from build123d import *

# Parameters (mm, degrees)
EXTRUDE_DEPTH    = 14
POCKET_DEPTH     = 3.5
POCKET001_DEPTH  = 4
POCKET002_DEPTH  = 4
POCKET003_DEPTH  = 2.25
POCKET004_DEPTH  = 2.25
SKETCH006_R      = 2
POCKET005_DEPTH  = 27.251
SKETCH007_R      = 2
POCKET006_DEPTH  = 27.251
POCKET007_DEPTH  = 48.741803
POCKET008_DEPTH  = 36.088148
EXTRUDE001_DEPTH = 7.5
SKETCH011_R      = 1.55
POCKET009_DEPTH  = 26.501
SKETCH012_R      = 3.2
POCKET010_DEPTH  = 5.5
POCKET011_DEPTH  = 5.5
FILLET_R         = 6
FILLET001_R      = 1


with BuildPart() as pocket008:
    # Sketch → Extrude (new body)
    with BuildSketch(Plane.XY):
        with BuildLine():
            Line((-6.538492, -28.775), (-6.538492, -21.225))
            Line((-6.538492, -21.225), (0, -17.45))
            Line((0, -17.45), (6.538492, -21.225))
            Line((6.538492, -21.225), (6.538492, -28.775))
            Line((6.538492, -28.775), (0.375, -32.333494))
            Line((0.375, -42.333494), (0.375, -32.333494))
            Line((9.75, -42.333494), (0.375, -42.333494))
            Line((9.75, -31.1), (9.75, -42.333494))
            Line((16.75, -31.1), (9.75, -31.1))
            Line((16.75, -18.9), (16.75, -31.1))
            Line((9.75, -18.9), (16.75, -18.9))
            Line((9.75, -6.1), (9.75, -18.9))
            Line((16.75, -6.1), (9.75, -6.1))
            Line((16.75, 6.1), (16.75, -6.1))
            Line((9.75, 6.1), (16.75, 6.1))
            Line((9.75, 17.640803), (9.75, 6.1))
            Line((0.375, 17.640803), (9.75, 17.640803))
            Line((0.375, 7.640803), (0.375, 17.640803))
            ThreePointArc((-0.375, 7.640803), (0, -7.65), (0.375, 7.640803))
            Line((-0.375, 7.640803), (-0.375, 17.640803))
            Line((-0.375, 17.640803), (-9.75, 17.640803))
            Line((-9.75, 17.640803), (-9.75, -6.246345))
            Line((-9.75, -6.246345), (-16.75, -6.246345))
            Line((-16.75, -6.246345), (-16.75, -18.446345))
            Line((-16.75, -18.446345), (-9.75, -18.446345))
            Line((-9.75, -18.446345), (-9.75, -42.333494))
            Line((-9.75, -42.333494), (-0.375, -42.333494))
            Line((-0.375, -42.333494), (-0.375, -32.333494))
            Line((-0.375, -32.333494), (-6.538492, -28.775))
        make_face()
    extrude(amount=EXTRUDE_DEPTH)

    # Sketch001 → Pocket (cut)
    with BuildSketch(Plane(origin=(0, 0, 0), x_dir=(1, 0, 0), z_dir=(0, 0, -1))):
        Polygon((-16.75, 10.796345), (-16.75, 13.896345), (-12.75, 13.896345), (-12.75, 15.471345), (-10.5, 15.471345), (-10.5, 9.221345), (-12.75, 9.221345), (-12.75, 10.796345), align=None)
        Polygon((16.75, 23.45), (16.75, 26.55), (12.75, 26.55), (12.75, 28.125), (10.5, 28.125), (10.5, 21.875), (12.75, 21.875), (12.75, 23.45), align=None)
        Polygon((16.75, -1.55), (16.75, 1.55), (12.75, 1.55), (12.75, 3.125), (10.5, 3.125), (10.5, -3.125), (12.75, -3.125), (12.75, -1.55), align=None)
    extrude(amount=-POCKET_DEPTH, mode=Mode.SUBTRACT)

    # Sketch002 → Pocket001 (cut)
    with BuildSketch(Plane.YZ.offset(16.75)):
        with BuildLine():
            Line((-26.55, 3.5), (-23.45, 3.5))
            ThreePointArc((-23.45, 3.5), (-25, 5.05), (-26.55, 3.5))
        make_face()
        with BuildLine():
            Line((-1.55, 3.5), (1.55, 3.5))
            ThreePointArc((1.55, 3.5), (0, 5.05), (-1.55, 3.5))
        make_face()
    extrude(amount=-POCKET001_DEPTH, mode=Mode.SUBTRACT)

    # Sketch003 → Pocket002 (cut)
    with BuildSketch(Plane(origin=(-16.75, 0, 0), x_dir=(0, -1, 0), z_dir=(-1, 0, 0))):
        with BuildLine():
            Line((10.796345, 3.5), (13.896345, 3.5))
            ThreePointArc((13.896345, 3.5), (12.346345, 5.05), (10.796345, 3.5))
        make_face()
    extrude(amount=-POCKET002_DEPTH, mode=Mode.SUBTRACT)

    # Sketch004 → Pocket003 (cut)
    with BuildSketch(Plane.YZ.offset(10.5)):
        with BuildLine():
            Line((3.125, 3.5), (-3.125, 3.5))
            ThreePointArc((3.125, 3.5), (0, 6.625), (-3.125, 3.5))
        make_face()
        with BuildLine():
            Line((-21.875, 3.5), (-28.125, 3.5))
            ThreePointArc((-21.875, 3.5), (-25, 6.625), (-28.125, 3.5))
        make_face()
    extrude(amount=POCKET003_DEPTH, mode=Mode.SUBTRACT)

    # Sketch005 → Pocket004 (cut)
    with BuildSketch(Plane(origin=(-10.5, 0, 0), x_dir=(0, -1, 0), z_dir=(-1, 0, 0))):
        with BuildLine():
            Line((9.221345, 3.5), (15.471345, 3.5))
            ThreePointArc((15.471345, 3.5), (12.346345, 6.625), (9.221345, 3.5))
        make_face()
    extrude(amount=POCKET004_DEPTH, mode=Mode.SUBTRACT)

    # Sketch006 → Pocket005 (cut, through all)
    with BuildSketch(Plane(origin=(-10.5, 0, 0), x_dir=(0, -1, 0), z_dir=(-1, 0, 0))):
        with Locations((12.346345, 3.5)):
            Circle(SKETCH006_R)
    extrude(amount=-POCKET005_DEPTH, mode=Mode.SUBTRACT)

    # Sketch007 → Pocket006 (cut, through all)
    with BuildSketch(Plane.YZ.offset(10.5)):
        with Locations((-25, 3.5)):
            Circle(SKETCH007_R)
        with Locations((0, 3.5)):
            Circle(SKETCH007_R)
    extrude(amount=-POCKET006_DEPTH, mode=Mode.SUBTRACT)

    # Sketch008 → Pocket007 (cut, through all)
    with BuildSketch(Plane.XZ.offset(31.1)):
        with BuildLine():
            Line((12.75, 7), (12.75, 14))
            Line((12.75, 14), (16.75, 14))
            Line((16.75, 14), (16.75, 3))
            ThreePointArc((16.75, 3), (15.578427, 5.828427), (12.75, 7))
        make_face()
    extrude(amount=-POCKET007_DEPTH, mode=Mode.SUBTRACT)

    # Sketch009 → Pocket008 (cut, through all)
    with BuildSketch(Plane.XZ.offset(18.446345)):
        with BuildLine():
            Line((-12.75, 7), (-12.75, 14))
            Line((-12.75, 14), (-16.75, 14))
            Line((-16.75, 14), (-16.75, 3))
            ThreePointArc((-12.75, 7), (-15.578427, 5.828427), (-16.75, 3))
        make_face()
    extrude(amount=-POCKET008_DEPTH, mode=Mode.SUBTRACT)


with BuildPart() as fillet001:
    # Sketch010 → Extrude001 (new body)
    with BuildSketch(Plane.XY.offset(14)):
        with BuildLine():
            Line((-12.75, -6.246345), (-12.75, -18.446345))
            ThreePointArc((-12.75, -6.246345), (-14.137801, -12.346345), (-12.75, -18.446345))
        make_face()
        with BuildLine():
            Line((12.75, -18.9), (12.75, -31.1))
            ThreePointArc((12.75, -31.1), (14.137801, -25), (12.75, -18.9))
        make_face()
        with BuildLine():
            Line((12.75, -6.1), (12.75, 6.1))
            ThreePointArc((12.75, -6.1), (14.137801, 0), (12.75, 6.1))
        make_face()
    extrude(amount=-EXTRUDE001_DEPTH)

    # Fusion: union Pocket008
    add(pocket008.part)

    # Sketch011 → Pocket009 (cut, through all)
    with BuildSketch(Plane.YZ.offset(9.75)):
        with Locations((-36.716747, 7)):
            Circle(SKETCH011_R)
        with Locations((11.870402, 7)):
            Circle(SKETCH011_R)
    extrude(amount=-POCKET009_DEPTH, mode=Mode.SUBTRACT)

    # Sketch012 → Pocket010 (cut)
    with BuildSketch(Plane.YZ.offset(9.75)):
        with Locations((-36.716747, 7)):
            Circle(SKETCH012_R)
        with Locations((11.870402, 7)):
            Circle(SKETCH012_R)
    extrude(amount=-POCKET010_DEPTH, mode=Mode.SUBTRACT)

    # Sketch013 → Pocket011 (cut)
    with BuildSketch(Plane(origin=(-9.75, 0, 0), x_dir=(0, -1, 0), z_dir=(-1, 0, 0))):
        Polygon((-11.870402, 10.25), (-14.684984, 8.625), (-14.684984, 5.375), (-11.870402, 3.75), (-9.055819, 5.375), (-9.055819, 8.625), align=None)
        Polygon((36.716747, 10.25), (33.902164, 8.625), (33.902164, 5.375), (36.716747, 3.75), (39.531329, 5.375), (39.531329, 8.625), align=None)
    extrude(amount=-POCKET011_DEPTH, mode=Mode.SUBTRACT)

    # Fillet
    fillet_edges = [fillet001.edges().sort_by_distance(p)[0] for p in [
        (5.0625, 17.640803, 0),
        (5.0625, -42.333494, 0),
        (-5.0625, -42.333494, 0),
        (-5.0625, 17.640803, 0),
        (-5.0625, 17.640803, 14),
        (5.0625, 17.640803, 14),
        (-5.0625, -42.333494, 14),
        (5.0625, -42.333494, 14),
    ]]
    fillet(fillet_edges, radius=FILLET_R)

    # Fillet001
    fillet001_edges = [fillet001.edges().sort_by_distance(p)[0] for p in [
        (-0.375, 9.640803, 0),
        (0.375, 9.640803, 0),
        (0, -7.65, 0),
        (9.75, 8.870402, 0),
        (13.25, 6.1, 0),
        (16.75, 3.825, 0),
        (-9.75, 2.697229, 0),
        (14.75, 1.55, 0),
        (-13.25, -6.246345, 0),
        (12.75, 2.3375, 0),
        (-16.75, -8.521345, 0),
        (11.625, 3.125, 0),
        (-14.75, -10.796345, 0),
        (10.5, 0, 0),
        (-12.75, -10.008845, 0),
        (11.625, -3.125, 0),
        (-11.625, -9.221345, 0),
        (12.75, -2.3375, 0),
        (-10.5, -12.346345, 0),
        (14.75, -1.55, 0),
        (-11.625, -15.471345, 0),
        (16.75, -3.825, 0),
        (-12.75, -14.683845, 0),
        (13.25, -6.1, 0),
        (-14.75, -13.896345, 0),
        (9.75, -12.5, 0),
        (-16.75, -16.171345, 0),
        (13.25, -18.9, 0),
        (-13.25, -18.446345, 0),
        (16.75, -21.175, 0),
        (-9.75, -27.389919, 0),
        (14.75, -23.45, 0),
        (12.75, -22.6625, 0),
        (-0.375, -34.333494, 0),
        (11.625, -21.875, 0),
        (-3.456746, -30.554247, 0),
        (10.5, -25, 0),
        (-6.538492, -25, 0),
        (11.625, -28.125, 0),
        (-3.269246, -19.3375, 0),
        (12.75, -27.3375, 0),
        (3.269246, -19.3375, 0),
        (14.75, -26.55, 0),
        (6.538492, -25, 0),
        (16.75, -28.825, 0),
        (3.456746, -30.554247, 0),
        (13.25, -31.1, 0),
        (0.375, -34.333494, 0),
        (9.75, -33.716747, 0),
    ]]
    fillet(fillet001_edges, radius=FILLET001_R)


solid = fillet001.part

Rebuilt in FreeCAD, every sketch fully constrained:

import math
import FreeCAD as App
import Part
import Sketcher
Q = App.Units.Quantity


def edges_at(feature, points):
    """Names of the edges that pass closest to the given points."""
    edges = feature.Shape.Edges
    near = lambda p: min(range(len(edges)), key=lambda i: edges[i].distToShape(Part.Vertex(*p))[0])
    return sorted({f"Edge{near(p) + 1}" for p in points})


def add_polygon(sketch, points):
    """Adds a closed chain of lines whose ends are joined by coincident constraints."""
    first, n = sketch.GeometryCount, len(points)
    for a, b in zip(points, points[1:] + points[:1]):
        sketch.addGeometry(Part.LineSegment(App.Vector(*a, 0), App.Vector(*b, 0)), False)
    for i in range(n):
        sketch.addConstraint(Sketcher.Constraint("Coincident", first + i, 2, first + (i + 1) % n, 1))

doc = App.newDocument("Part")
body = doc.addObject("PartDesign::Body", "Body")

sketch1 = body.newObject("Sketcher::SketchObject", "Sketch")
sketch1.AttachmentSupport = (doc.getObject("XY_Plane"), [""])
sketch1.MapMode = "FlatFace"
sketch1.addGeometry(Part.LineSegment(App.Vector(-6.538492, -28.775, 0), App.Vector(-6.538492, -21.225, 0)), False)
sketch1.addGeometry(Part.LineSegment(App.Vector(-6.538492, -21.225, 0), App.Vector(0, -17.45, 0)), False)
sketch1.addGeometry(Part.LineSegment(App.Vector(0, -17.45, 0), App.Vector(6.538492, -21.225, 0)), False)
sketch1.addGeometry(Part.LineSegment(App.Vector(6.538492, -21.225, 0), App.Vector(6.538492, -28.775, 0)), False)
sketch1.addGeometry(Part.LineSegment(App.Vector(6.538492, -28.775, 0), App.Vector(0.375, -32.333494, 0)), False)
sketch1.addGeometry(Part.LineSegment(App.Vector(0.375, -32.333494, 0), App.Vector(0.375, -42.333494, 0)), False)
sketch1.addGeometry(Part.LineSegment(App.Vector(0.375, -42.333494, 0), App.Vector(9.75, -42.333494, 0)), False)
sketch1.addGeometry(Part.LineSegment(App.Vector(9.75, -42.333494, 0), App.Vector(9.75, -31.1, 0)), False)
sketch1.addGeometry(Part.LineSegment(App.Vector(9.75, -31.1, 0), App.Vector(16.75, -31.1, 0)), False)
sketch1.addGeometry(Part.LineSegment(App.Vector(16.75, -31.1, 0), App.Vector(16.75, -18.9, 0)), False)
sketch1.addGeometry(Part.LineSegment(App.Vector(16.75, -18.9, 0), App.Vector(9.75, -18.9, 0)), False)
sketch1.addGeometry(Part.LineSegment(App.Vector(9.75, -18.9, 0), App.Vector(9.75, -6.1, 0)), False)
sketch1.addGeometry(Part.LineSegment(App.Vector(9.75, -6.1, 0), App.Vector(16.75, -6.1, 0)), False)
sketch1.addGeometry(Part.LineSegment(App.Vector(16.75, -6.1, 0), App.Vector(16.75, 6.1, 0)), False)
sketch1.addGeometry(Part.LineSegment(App.Vector(16.75, 6.1, 0), App.Vector(9.75, 6.1, 0)), False)
sketch1.addGeometry(Part.LineSegment(App.Vector(9.75, 6.1, 0), App.Vector(9.75, 17.640803, 0)), False)
sketch1.addGeometry(Part.LineSegment(App.Vector(9.75, 17.640803, 0), App.Vector(0.375, 17.640803, 0)), False)
sketch1.addGeometry(Part.LineSegment(App.Vector(0.375, 17.640803, 0), App.Vector(0.375, 7.640803, 0)), False)
sketch1.addGeometry(Part.ArcOfCircle(Part.Circle(App.Vector(0, 0, 0), App.Vector(0, 0, 1), 7.65), math.radians(92.809743), math.radians(447.190257)), False)
sketch1.addGeometry(Part.LineSegment(App.Vector(-0.375, 7.640803, 0), App.Vector(-0.375, 17.640803, 0)), False)
sketch1.addGeometry(Part.LineSegment(App.Vector(-0.375, 17.640803, 0), App.Vector(-9.75, 17.640803, 0)), False)
sketch1.addGeometry(Part.LineSegment(App.Vector(-9.75, 17.640803, 0), App.Vector(-9.75, -6.246345, 0)), False)
sketch1.addGeometry(Part.LineSegment(App.Vector(-9.75, -6.246345, 0), App.Vector(-16.75, -6.246345, 0)), False)
sketch1.addGeometry(Part.LineSegment(App.Vector(-16.75, -6.246345, 0), App.Vector(-16.75, -18.446345, 0)), False)
sketch1.addGeometry(Part.LineSegment(App.Vector(-16.75, -18.446345, 0), App.Vector(-9.75, -18.446345, 0)), False)
sketch1.addGeometry(Part.LineSegment(App.Vector(-9.75, -18.446345, 0), App.Vector(-9.75, -42.333494, 0)), False)
sketch1.addGeometry(Part.LineSegment(App.Vector(-9.75, -42.333494, 0), App.Vector(-0.375, -42.333494, 0)), False)
sketch1.addGeometry(Part.LineSegment(App.Vector(-0.375, -42.333494, 0), App.Vector(-0.375, -32.333494, 0)), False)
sketch1.addGeometry(Part.LineSegment(App.Vector(-0.375, -32.333494, 0), App.Vector(-6.538492, -28.775, 0)), False)
sketch1.addConstraint(Sketcher.Constraint("Coincident", 0, 2, 1, 1))
sketch1.addConstraint(Sketcher.Constraint("Coincident", 1, 2, 2, 1))
sketch1.addConstraint(Sketcher.Constraint("Coincident", 2, 2, 3, 1))
sketch1.addConstraint(Sketcher.Constraint("Coincident", 3, 2, 4, 1))
sketch1.addConstraint(Sketcher.Constraint("Coincident", 4, 2, 5, 1))
sketch1.addConstraint(Sketcher.Constraint("Coincident", 5, 2, 6, 1))
sketch1.addConstraint(Sketcher.Constraint("Coincident", 6, 2, 7, 1))
sketch1.addConstraint(Sketcher.Constraint("Coincident", 7, 2, 8, 1))
sketch1.addConstraint(Sketcher.Constraint("Coincident", 8, 2, 9, 1))
sketch1.addConstraint(Sketcher.Constraint("Coincident", 9, 2, 10, 1))
sketch1.addConstraint(Sketcher.Constraint("Coincident", 10, 2, 11, 1))
sketch1.addConstraint(Sketcher.Constraint("Coincident", 11, 2, 12, 1))
sketch1.addConstraint(Sketcher.Constraint("Coincident", 12, 2, 13, 1))
sketch1.addConstraint(Sketcher.Constraint("Coincident", 13, 2, 14, 1))
sketch1.addConstraint(Sketcher.Constraint("Coincident", 14, 2, 15, 1))
sketch1.addConstraint(Sketcher.Constraint("Coincident", 15, 2, 16, 1))
sketch1.addConstraint(Sketcher.Constraint("Coincident", 16, 2, 17, 1))
sketch1.addConstraint(Sketcher.Constraint("Coincident", 17, 2, 18, 2))
sketch1.addConstraint(Sketcher.Constraint("Coincident", 18, 1, 19, 1))
sketch1.addConstraint(Sketcher.Constraint("Coincident", 19, 2, 20, 1))
sketch1.addConstraint(Sketcher.Constraint("Coincident", 20, 2, 21, 1))
sketch1.addConstraint(Sketcher.Constraint("Coincident", 21, 2, 22, 1))
sketch1.addConstraint(Sketcher.Constraint("Coincident", 22, 2, 23, 1))
sketch1.addConstraint(Sketcher.Constraint("Coincident", 23, 2, 24, 1))
sketch1.addConstraint(Sketcher.Constraint("Coincident", 24, 2, 25, 1))
sketch1.addConstraint(Sketcher.Constraint("Coincident", 25, 2, 26, 1))
sketch1.addConstraint(Sketcher.Constraint("Coincident", 26, 2, 27, 1))
sketch1.addConstraint(Sketcher.Constraint("Coincident", 27, 2, 28, 1))
sketch1.addConstraint(Sketcher.Constraint("Coincident", 28, 2, 0, 1))
sketch1.addConstraint(Sketcher.Constraint("Vertical", 0))
sketch1.addConstraint(Sketcher.Constraint("Vertical", 3))
sketch1.addConstraint(Sketcher.Constraint("Vertical", 5))
sketch1.addConstraint(Sketcher.Constraint("Horizontal", 6))
sketch1.addConstraint(Sketcher.Constraint("Vertical", 7))
sketch1.addConstraint(Sketcher.Constraint("Horizontal", 8))
sketch1.addConstraint(Sketcher.Constraint("Vertical", 9))
sketch1.addConstraint(Sketcher.Constraint("Horizontal", 10))
sketch1.addConstraint(Sketcher.Constraint("Vertical", 11))
sketch1.addConstraint(Sketcher.Constraint("Horizontal", 12))
sketch1.addConstraint(Sketcher.Constraint("Vertical", 13))
sketch1.addConstraint(Sketcher.Constraint("Horizontal", 14))
sketch1.addConstraint(Sketcher.Constraint("Vertical", 15))
sketch1.addConstraint(Sketcher.Constraint("Horizontal", 16))
sketch1.addConstraint(Sketcher.Constraint("Vertical", 17))
sketch1.addConstraint(Sketcher.Constraint("Vertical", 19))
sketch1.addConstraint(Sketcher.Constraint("Horizontal", 20))
sketch1.addConstraint(Sketcher.Constraint("Vertical", 21))
sketch1.addConstraint(Sketcher.Constraint("Horizontal", 22))
sketch1.addConstraint(Sketcher.Constraint("Vertical", 23))
sketch1.addConstraint(Sketcher.Constraint("Horizontal", 24))
sketch1.addConstraint(Sketcher.Constraint("Vertical", 25))
sketch1.addConstraint(Sketcher.Constraint("Horizontal", 26))
sketch1.addConstraint(Sketcher.Constraint("Vertical", 27))
sketch1.addConstraint(Sketcher.Constraint("Coincident", 18, 3, -1, 1))
sketch1.addConstraint(Sketcher.Constraint("Symmetric", 0, 2, 2, 2, -2))
sketch1.addConstraint(Sketcher.Constraint("Symmetric", 16, 2, 19, 2, -2))
sketch1.addConstraint(Sketcher.Constraint("Symmetric", 6, 2, 25, 2, -2))
sketch1.addConstraint(Sketcher.Constraint("Symmetric", 4, 2, 27, 2, -2))
sketch1.addConstraint(Sketcher.Constraint("Symmetric", 11, 2, 14, 2, -1))
sketch1.addConstraint(Sketcher.Constraint("PointOnObject", 1, 2, -2))
sketch1.addConstraint(Sketcher.Constraint("Parallel", 1, 4))
sketch1.addConstraint(Sketcher.Constraint("Parallel", 2, 28))
sketch1.addConstraint(Sketcher.Constraint("Vertical", 7, 2, 10, 2))
sketch1.addConstraint(Sketcher.Constraint("Vertical", 9, 2, 12, 2))
sketch1.addConstraint(Sketcher.Constraint("Vertical", 5, 2, 16, 2))
sketch1.addConstraint(Sketcher.Constraint("Vertical", 21, 2, 24, 2))
sketch1.addConstraint(Sketcher.Constraint("Equal", 14, 22))
sketch1.addConstraint(Sketcher.Constraint("Equal", 9, 13))
sketch1.addConstraint(Sketcher.Constraint("Equal", 5, 17))
sketch1.addConstraint(Sketcher.Constraint("Equal", 13, 23))
sketch1.addConstraint(Sketcher.Constraint("Equal", 21, 25))
sketch1.addConstraint(Sketcher.Constraint("DistanceX", 8, 1, 8, 2, 7.0))
sketch1.addConstraint(Sketcher.Constraint("DistanceY", 5, 2, 5, 1, 10.0))
sketch1.addConstraint(Sketcher.Constraint("Angle", 1, Q("29.999999 deg")))
sketch1.addConstraint(Sketcher.Constraint("Radius", 18, 7.65))
sketch1.addConstraint(Sketcher.Constraint("DistanceY", 9, 1, 9, 2, 12.2))
sketch1.addConstraint(Sketcher.Constraint("DistanceY", 11, 1, 11, 2, 12.8))
sketch1.addConstraint(Sketcher.Constraint("DistanceY", 0, 1, 0, 2, 7.55))
sketch1.addConstraint(Sketcher.Constraint("DistanceX", 20, 2, 15, 2, 19.5))
sketch1.addConstraint(Sketcher.Constraint("Distance", 1, 7.55))
sketch1.addConstraint(Sketcher.Constraint("DistanceX", 6, 1, 6, 2, 9.375))
sketch1.addConstraint(Sketcher.Constraint("DistanceY", 1, 2, -1, 1, 17.45))
pad1 = body.newObject("PartDesign::Pad", "Pad")
pad1.Profile = sketch1
pad1.Length = 14

sketch2 = body.newObject("Sketcher::SketchObject", "Sketch001")
sketch2.AttachmentSupport = (doc.getObject("XY_Plane"), [""])
sketch2.MapMode = "FlatFace"
add_polygon(sketch2, [(-16.75, -13.896345), (-16.75, -10.796345), (-12.75, -10.796345), (-12.75, -9.221345), (-10.5, -9.221345), (-10.5, -15.471345), (-12.75, -15.471345), (-12.75, -13.896345)])
add_polygon(sketch2, [(16.75, -23.45), (16.75, -26.55), (12.75, -26.55), (12.75, -28.125), (10.5, -28.125), (10.5, -21.875), (12.75, -21.875), (12.75, -23.45)])
add_polygon(sketch2, [(16.75, 1.55), (16.75, -1.55), (12.75, -1.55), (12.75, -3.125), (10.5, -3.125), (10.5, 3.125), (12.75, 3.125), (12.75, 1.55)])
sketch2.addConstraint(Sketcher.Constraint("Vertical", 0))
sketch2.addConstraint(Sketcher.Constraint("Horizontal", 1))
sketch2.addConstraint(Sketcher.Constraint("Vertical", 2))
sketch2.addConstraint(Sketcher.Constraint("Horizontal", 3))
sketch2.addConstraint(Sketcher.Constraint("Vertical", 4))
sketch2.addConstraint(Sketcher.Constraint("Horizontal", 5))
sketch2.addConstraint(Sketcher.Constraint("Vertical", 6))
sketch2.addConstraint(Sketcher.Constraint("Horizontal", 7))
sketch2.addConstraint(Sketcher.Constraint("Vertical", 8))
sketch2.addConstraint(Sketcher.Constraint("Horizontal", 9))
sketch2.addConstraint(Sketcher.Constraint("Vertical", 10))
sketch2.addConstraint(Sketcher.Constraint("Horizontal", 11))
sketch2.addConstraint(Sketcher.Constraint("Vertical", 12))
sketch2.addConstraint(Sketcher.Constraint("Horizontal", 13))
sketch2.addConstraint(Sketcher.Constraint("Vertical", 14))
sketch2.addConstraint(Sketcher.Constraint("Horizontal", 15))
sketch2.addConstraint(Sketcher.Constraint("Vertical", 16))
sketch2.addConstraint(Sketcher.Constraint("Horizontal", 17))
sketch2.addConstraint(Sketcher.Constraint("Vertical", 18))
sketch2.addConstraint(Sketcher.Constraint("Horizontal", 19))
sketch2.addConstraint(Sketcher.Constraint("Vertical", 20))
sketch2.addConstraint(Sketcher.Constraint("Horizontal", 21))
sketch2.addConstraint(Sketcher.Constraint("Vertical", 22))
sketch2.addConstraint(Sketcher.Constraint("Horizontal", 23))
sketch2.addConstraint(Sketcher.Constraint("Symmetric", 18, 2, 21, 2, -1))
sketch2.addConstraint(Sketcher.Constraint("Vertical", 2, 2, 5, 2))
sketch2.addConstraint(Sketcher.Constraint("Vertical", 10, 2, 13, 2))
sketch2.addConstraint(Sketcher.Constraint("Vertical", 15, 2, 16, 2))
sketch2.addConstraint(Sketcher.Constraint("Vertical", 14, 2, 17, 2))
sketch2.addConstraint(Sketcher.Constraint("Vertical", 12, 2, 19, 2))
sketch2.addConstraint(Sketcher.Constraint("Equal", 7, 9))
sketch2.addConstraint(Sketcher.Constraint("Equal", 5, 11))
sketch2.addConstraint(Sketcher.Constraint("Equal", 2, 6))
sketch2.addConstraint(Sketcher.Constraint("Equal", 0, 8))
sketch2.addConstraint(Sketcher.Constraint("Equal", 6, 10))
sketch2.addConstraint(Sketcher.Constraint("Equal", 4, 12))
sketch2.addConstraint(Sketcher.Constraint("Equal", 8, 16))
sketch2.addConstraint(Sketcher.Constraint("Equal", 14, 18))
sketch2.addConstraint(Sketcher.Constraint("Equal", 12, 20))
sketch2.addConstraint(Sketcher.Constraint("DistanceX", 1, 1, 1, 2, 4.0))
sketch2.addConstraint(Sketcher.Constraint("DistanceY", 0, 1, 0, 2, 3.1))
sketch2.addConstraint(Sketcher.Constraint("DistanceX", 4, 2, 11, 2, 21.0))
sketch2.addConstraint(Sketcher.Constraint("DistanceY", 8, 2, 16, 2, 25.0))
sketch2.addConstraint(Sketcher.Constraint("DistanceX", 3, 1, 3, 2, 2.25))
sketch2.addConstraint(Sketcher.Constraint("DistanceY", 4, 2, 4, 1, 6.25))
sketch2.addConstraint(Sketcher.Constraint("DistanceX", 3, 2, -1, 1, 10.5))
sketch2.addConstraint(Sketcher.Constraint("DistanceY", 0, 2, -1, 1, 10.796345))
pocket1 = body.newObject("PartDesign::Pocket", "Pocket")
pocket1.Profile = sketch2
pocket1.Length = 3.5
pocket1.Reversed = True

sketch3 = body.newObject("Sketcher::SketchObject", "Sketch002")
sketch3.AttachmentSupport = (doc.getObject("YZ_Plane"), [""])
sketch3.MapMode = "FlatFace"
sketch3.AttachmentOffset = App.Placement(App.Vector(0, 0, 16.75), App.Rotation())
sketch3.addGeometry(Part.LineSegment(App.Vector(-26.55, 3.5, 0), App.Vector(-23.45, 3.5, 0)), False)
sketch3.addGeometry(Part.ArcOfCircle(Part.Circle(App.Vector(-25, 3.5, 0), App.Vector(0, 0, 1), 1.55), math.radians(0), math.radians(180)), False)
sketch3.addGeometry(Part.LineSegment(App.Vector(-1.55, 3.5, 0), App.Vector(1.55, 3.5, 0)), False)
sketch3.addGeometry(Part.ArcOfCircle(Part.Circle(App.Vector(0, 3.5, 0), App.Vector(0, 0, 1), 1.55), math.radians(0), math.radians(180)), False)
sketch3.addConstraint(Sketcher.Constraint("Coincident", 0, 1, 1, 2))
sketch3.addConstraint(Sketcher.Constraint("Coincident", 1, 1, 0, 2))
sketch3.addConstraint(Sketcher.Constraint("Coincident", 2, 1, 3, 2))
sketch3.addConstraint(Sketcher.Constraint("Coincident", 3, 1, 2, 2))
sketch3.addConstraint(Sketcher.Constraint("Horizontal", 0))
sketch3.addConstraint(Sketcher.Constraint("Horizontal", 2))
sketch3.addConstraint(Sketcher.Constraint("Equal", 1, 3))
sketch3.addConstraint(Sketcher.Constraint("PointOnObject", 3, 3, -2))
sketch3.addConstraint(Sketcher.Constraint("Horizontal", 1, 3, 3, 3))
sketch3.addConstraint(Sketcher.Constraint("Horizontal", 3, 3, 0, 1))
sketch3.addConstraint(Sketcher.Constraint("Horizontal", 1, 1, 2, 1))
sketch3.addConstraint(Sketcher.Constraint("Radius", 1, 1.55))
sketch3.addConstraint(Sketcher.Constraint("DistanceX", 1, 3, -1, 1, 25.0))
sketch3.addConstraint(Sketcher.Constraint("DistanceY", -1, 1, 1, 3, 3.5))
pocket2 = body.newObject("PartDesign::Pocket", "Pocket001")
pocket2.Profile = sketch3
pocket2.Length = 4

sketch4 = body.newObject("Sketcher::SketchObject", "Sketch003")
sketch4.AttachmentSupport = (doc.getObject("YZ_Plane"), [""])
sketch4.MapMode = "FlatFace"
sketch4.AttachmentOffset = App.Placement(App.Vector(0, 0, -16.75), App.Rotation())
sketch4.addGeometry(Part.LineSegment(App.Vector(-10.796345, 3.5, 0), App.Vector(-13.896345, 3.5, 0)), False)
sketch4.addGeometry(Part.ArcOfCircle(Part.Circle(App.Vector(-12.346345, 3.5, 0), App.Vector(0, 0, 1), 1.55), math.radians(0), math.radians(180)), False)
sketch4.addConstraint(Sketcher.Constraint("Coincident", 0, 1, 1, 1))
sketch4.addConstraint(Sketcher.Constraint("Coincident", 1, 2, 0, 2))
sketch4.addConstraint(Sketcher.Constraint("Horizontal", 0))
sketch4.addConstraint(Sketcher.Constraint("Horizontal", 1, 3, 0, 1))
sketch4.addConstraint(Sketcher.Constraint("Radius", 1, 1.55))
sketch4.addConstraint(Sketcher.Constraint("DistanceY", -1, 1, 1, 3, 3.5))
sketch4.addConstraint(Sketcher.Constraint("DistanceX", 1, 3, -1, 1, 12.346345))
pocket3 = body.newObject("PartDesign::Pocket", "Pocket002")
pocket3.Profile = sketch4
pocket3.Length = 4
pocket3.Reversed = True

sketch5 = body.newObject("Sketcher::SketchObject", "Sketch004")
sketch5.AttachmentSupport = (doc.getObject("YZ_Plane"), [""])
sketch5.MapMode = "FlatFace"
sketch5.AttachmentOffset = App.Placement(App.Vector(0, 0, 10.5), App.Rotation())
sketch5.addGeometry(Part.LineSegment(App.Vector(-3.125, 3.5, 0), App.Vector(3.125, 3.5, 0)), False)
sketch5.addGeometry(Part.ArcOfCircle(Part.Circle(App.Vector(0, 3.5, 0), App.Vector(0, 0, 1), 3.125), math.radians(0), math.radians(180)), False)
sketch5.addGeometry(Part.LineSegment(App.Vector(-28.125, 3.5, 0), App.Vector(-21.875, 3.5, 0)), False)
sketch5.addGeometry(Part.ArcOfCircle(Part.Circle(App.Vector(-25, 3.5, 0), App.Vector(0, 0, 1), 3.125), math.radians(0), math.radians(180)), False)
sketch5.addConstraint(Sketcher.Constraint("Coincident", 0, 1, 1, 2))
sketch5.addConstraint(Sketcher.Constraint("Coincident", 1, 1, 0, 2))
sketch5.addConstraint(Sketcher.Constraint("Coincident", 2, 1, 3, 2))
sketch5.addConstraint(Sketcher.Constraint("Coincident", 3, 1, 2, 2))
sketch5.addConstraint(Sketcher.Constraint("Horizontal", 0))
sketch5.addConstraint(Sketcher.Constraint("Horizontal", 2))
sketch5.addConstraint(Sketcher.Constraint("Equal", 1, 3))
sketch5.addConstraint(Sketcher.Constraint("PointOnObject", 1, 3, -2))
sketch5.addConstraint(Sketcher.Constraint("Horizontal", 1, 3, 3, 3))
sketch5.addConstraint(Sketcher.Constraint("Horizontal", 3, 3, 0, 1))
sketch5.addConstraint(Sketcher.Constraint("Horizontal", 1, 1, 2, 1))
sketch5.addConstraint(Sketcher.Constraint("DistanceX", 3, 3, -1, 1, 25.0))
sketch5.addConstraint(Sketcher.Constraint("Radius", 1, 3.125))
sketch5.addConstraint(Sketcher.Constraint("DistanceY", -1, 1, 1, 3, 3.5))
pocket4 = body.newObject("PartDesign::Pocket", "Pocket003")
pocket4.Profile = sketch5
pocket4.Length = 2.25
pocket4.Reversed = True

sketch6 = body.newObject("Sketcher::SketchObject", "Sketch005")
sketch6.AttachmentSupport = (doc.getObject("YZ_Plane"), [""])
sketch6.MapMode = "FlatFace"
sketch6.AttachmentOffset = App.Placement(App.Vector(0, 0, -10.5), App.Rotation())
sketch6.addGeometry(Part.LineSegment(App.Vector(-9.221345, 3.5, 0), App.Vector(-15.471345, 3.5, 0)), False)
sketch6.addGeometry(Part.ArcOfCircle(Part.Circle(App.Vector(-12.346345, 3.5, 0), App.Vector(0, 0, 1), 3.125), math.radians(0), math.radians(180)), False)
sketch6.addConstraint(Sketcher.Constraint("Coincident", 0, 1, 1, 1))
sketch6.addConstraint(Sketcher.Constraint("Coincident", 1, 2, 0, 2))
sketch6.addConstraint(Sketcher.Constraint("Horizontal", 0))
sketch6.addConstraint(Sketcher.Constraint("Horizontal", 1, 3, 0, 1))
sketch6.addConstraint(Sketcher.Constraint("Radius", 1, 3.125))
sketch6.addConstraint(Sketcher.Constraint("DistanceY", -1, 1, 1, 3, 3.5))
sketch6.addConstraint(Sketcher.Constraint("DistanceX", 1, 3, -1, 1, 12.346345))
pocket5 = body.newObject("PartDesign::Pocket", "Pocket004")
pocket5.Profile = sketch6
pocket5.Length = 2.25

sketch7 = body.newObject("Sketcher::SketchObject", "Sketch006")
sketch7.AttachmentSupport = (doc.getObject("YZ_Plane"), [""])
sketch7.MapMode = "FlatFace"
sketch7.AttachmentOffset = App.Placement(App.Vector(0, 0, -10.5), App.Rotation())
sketch7.addGeometry(Part.Circle(App.Vector(-12.346345, 3.5, 0), App.Vector(0, 0, 1), 2), False)
sketch7.addConstraint(Sketcher.Constraint("Diameter", 0, 4.0))
sketch7.addConstraint(Sketcher.Constraint("DistanceY", -1, 1, 0, 3, 3.5))
sketch7.addConstraint(Sketcher.Constraint("DistanceX", 0, 3, -1, 1, 12.346345))
pocket6 = body.newObject("PartDesign::Pocket", "Pocket005")
pocket6.Profile = sketch7
pocket6.Type = "ThroughAll"
pocket6.Reversed = True

sketch8 = body.newObject("Sketcher::SketchObject", "Sketch007")
sketch8.AttachmentSupport = (doc.getObject("YZ_Plane"), [""])
sketch8.MapMode = "FlatFace"
sketch8.AttachmentOffset = App.Placement(App.Vector(0, 0, 10.5), App.Rotation())
sketch8.addGeometry(Part.Circle(App.Vector(-25, 3.5, 0), App.Vector(0, 0, 1), 2), False)
sketch8.addGeometry(Part.Circle(App.Vector(0, 3.5, 0), App.Vector(0, 0, 1), 2), False)
sketch8.addConstraint(Sketcher.Constraint("Equal", 0, 1))
sketch8.addConstraint(Sketcher.Constraint("PointOnObject", 1, 3, -2))
sketch8.addConstraint(Sketcher.Constraint("Horizontal", 0, 3, 1, 3))
sketch8.addConstraint(Sketcher.Constraint("Diameter", 0, 4.0))
sketch8.addConstraint(Sketcher.Constraint("DistanceX", 0, 3, -1, 1, 25.0))
sketch8.addConstraint(Sketcher.Constraint("DistanceY", -1, 1, 0, 3, 3.5))
pocket7 = body.newObject("PartDesign::Pocket", "Pocket006")
pocket7.Profile = sketch8
pocket7.Type = "ThroughAll"

sketch9 = body.newObject("Sketcher::SketchObject", "Sketch008")
sketch9.AttachmentSupport = (doc.getObject("XZ_Plane"), [""])
sketch9.MapMode = "FlatFace"
sketch9.AttachmentOffset = App.Placement(App.Vector(0, 0, 31.1), App.Rotation())
sketch9.addGeometry(Part.LineSegment(App.Vector(12.75, 14, 0), App.Vector(12.75, 7, 0)), False)
sketch9.addGeometry(Part.ArcOfCircle(Part.Circle(App.Vector(12.75, 3, 0), App.Vector(0, 0, 1), 4), math.radians(0.000006), math.radians(89.999994)), False)
sketch9.addGeometry(Part.LineSegment(App.Vector(16.75, 3, 0), App.Vector(16.75, 14, 0)), False)
sketch9.addGeometry(Part.LineSegment(App.Vector(16.75, 14, 0), App.Vector(12.75, 14, 0)), False)
sketch9.addConstraint(Sketcher.Constraint("Coincident", 0, 2, 1, 2))
sketch9.addConstraint(Sketcher.Constraint("Tangent", 1, 1, 2, 1))
sketch9.addConstraint(Sketcher.Constraint("Coincident", 2, 2, 3, 1))
sketch9.addConstraint(Sketcher.Constraint("Coincident", 3, 2, 0, 1))
sketch9.addConstraint(Sketcher.Constraint("Vertical", 0))
sketch9.addConstraint(Sketcher.Constraint("Vertical", 2))
sketch9.addConstraint(Sketcher.Constraint("Horizontal", 3))
sketch9.addConstraint(Sketcher.Constraint("Vertical", 1, 3, 0, 2))
sketch9.addConstraint(Sketcher.Constraint("Radius", 1, 4.0))
sketch9.addConstraint(Sketcher.Constraint("DistanceY", 0, 2, 0, 1, 7.0))
sketch9.addConstraint(Sketcher.Constraint("DistanceY", -1, 1, 1, 3, 3.0))
sketch9.addConstraint(Sketcher.Constraint("DistanceX", -1, 1, 1, 3, 12.75))
pocket8 = body.newObject("PartDesign::Pocket", "Pocket007")
pocket8.Profile = sketch9
pocket8.Type = "ThroughAll"

sketch10 = body.newObject("Sketcher::SketchObject", "Sketch009")
sketch10.AttachmentSupport = (doc.getObject("XZ_Plane"), [""])
sketch10.MapMode = "FlatFace"
sketch10.AttachmentOffset = App.Placement(App.Vector(0, 0, 18.446345), App.Rotation())
sketch10.addGeometry(Part.LineSegment(App.Vector(-12.75, 7, 0), App.Vector(-12.75, 14, 0)), False)
sketch10.addGeometry(Part.LineSegment(App.Vector(-12.75, 14, 0), App.Vector(-16.75, 14, 0)), False)
sketch10.addGeometry(Part.LineSegment(App.Vector(-16.75, 14, 0), App.Vector(-16.75, 3, 0)), False)
sketch10.addGeometry(Part.ArcOfCircle(Part.Circle(App.Vector(-12.75, 3, 0), App.Vector(0, 0, 1), 4), math.radians(90.000006), math.radians(179.999994)), False)
sketch10.addConstraint(Sketcher.Constraint("Coincident", 0, 2, 1, 1))
sketch10.addConstraint(Sketcher.Constraint("Coincident", 1, 2, 2, 1))
sketch10.addConstraint(Sketcher.Constraint("Tangent", 2, 2, 3, 2))
sketch10.addConstraint(Sketcher.Constraint("Coincident", 3, 1, 0, 1))
sketch10.addConstraint(Sketcher.Constraint("Vertical", 0))
sketch10.addConstraint(Sketcher.Constraint("Horizontal", 1))
sketch10.addConstraint(Sketcher.Constraint("Vertical", 2))
sketch10.addConstraint(Sketcher.Constraint("Vertical", 3, 3, 0, 2))
sketch10.addConstraint(Sketcher.Constraint("Radius", 3, 4.0))
sketch10.addConstraint(Sketcher.Constraint("DistanceY", 0, 1, 0, 2, 7.0))
sketch10.addConstraint(Sketcher.Constraint("DistanceY", -1, 1, 3, 3, 3.0))
sketch10.addConstraint(Sketcher.Constraint("DistanceX", 3, 3, -1, 1, 12.75))
pocket9 = body.newObject("PartDesign::Pocket", "Pocket008")
pocket9.Profile = sketch10
pocket9.Type = "ThroughAll"
body2 = doc.addObject("PartDesign::Body", "Body001")
body2.AllowCompound = True

sketch11 = body2.newObject("Sketcher::SketchObject", "Sketch010")
sketch11.AttachmentSupport = (doc.getObject("XY_Plane001"), [""])
sketch11.MapMode = "FlatFace"
sketch11.AttachmentOffset = App.Placement(App.Vector(0, 0, 14), App.Rotation())
sketch11.addGeometry(Part.LineSegment(App.Vector(-12.75, -18.446345, 0), App.Vector(-12.75, -6.246345, 0)), False)
sketch11.addGeometry(Part.ArcOfCircle(Part.Circle(App.Vector(-0.0378, -12.346345, 0), App.Vector(0, 0, 1), 14.100001), math.radians(154.365794), math.radians(205.634206)), False)
sketch11.addGeometry(Part.LineSegment(App.Vector(12.75, -18.9, 0), App.Vector(12.75, -31.1, 0)), False)
sketch11.addGeometry(Part.ArcOfCircle(Part.Circle(App.Vector(0.0378, -25, 0), App.Vector(0, 0, 1), 14.100001), math.radians(-25.634206), math.radians(25.634206)), False)
sketch11.addGeometry(Part.LineSegment(App.Vector(12.75, 6.1, 0), App.Vector(12.75, -6.1, 0)), False)
sketch11.addGeometry(Part.ArcOfCircle(Part.Circle(App.Vector(0.0378, 0, 0), App.Vector(0, 0, 1), 14.100001), math.radians(-25.634206), math.radians(25.634206)), False)
sketch11.addConstraint(Sketcher.Constraint("Coincident", 0, 1, 1, 2))
sketch11.addConstraint(Sketcher.Constraint("Coincident", 1, 1, 0, 2))
sketch11.addConstraint(Sketcher.Constraint("Coincident", 2, 1, 3, 2))
sketch11.addConstraint(Sketcher.Constraint("Coincident", 3, 1, 2, 2))
sketch11.addConstraint(Sketcher.Constraint("Coincident", 4, 1, 5, 2))
sketch11.addConstraint(Sketcher.Constraint("Coincident", 5, 1, 4, 2))
sketch11.addConstraint(Sketcher.Constraint("Vertical", 0))
sketch11.addConstraint(Sketcher.Constraint("Vertical", 2))
sketch11.addConstraint(Sketcher.Constraint("Vertical", 4))
sketch11.addConstraint(Sketcher.Constraint("Equal", 1, 3))
sketch11.addConstraint(Sketcher.Constraint("Equal", 3, 5))
sketch11.addConstraint(Sketcher.Constraint("PointOnObject", 5, 3, -1))
sketch11.addConstraint(Sketcher.Constraint("Vertical", 3, 3, 5, 3))
sketch11.addConstraint(Sketcher.Constraint("Vertical", 3, 1, 4, 1))
sketch11.addConstraint(Sketcher.Constraint("Equal", 0, 2))
sketch11.addConstraint(Sketcher.Constraint("Radius", 1, 14.100001))
sketch11.addConstraint(Sketcher.Constraint("DistanceY", 0, 1, 0, 2, 12.2))
sketch11.addConstraint(Sketcher.Constraint("DistanceY", 3, 3, -1, 1, 25.0))
sketch11.addConstraint(Sketcher.Constraint("DistanceX", 0, 1, 2, 1, 25.5))
sketch11.addConstraint(Sketcher.Constraint("DistanceX", 0, 1, -1, 1, 12.75))
sketch11.addConstraint(Sketcher.Constraint("DistanceY", 1, 3, -1, 1, 12.346345))
pad2 = body2.newObject("PartDesign::Pad", "Pad001")
pad2.Profile = sketch11
pad2.Length = 7.5
pad2.Reversed = True
doc.recompute()

boolean = body2.newObject("PartDesign::Boolean", "Boolean")
boolean.Type = "Fuse"
boolean.addObjects([body])

sketch12 = body2.newObject("Sketcher::SketchObject", "Sketch011")
sketch12.AttachmentSupport = (doc.getObject("YZ_Plane001"), [""])
sketch12.MapMode = "FlatFace"
sketch12.AttachmentOffset = App.Placement(App.Vector(0, 0, 9.75), App.Rotation())
sketch12.addGeometry(Part.Circle(App.Vector(-36.716747, 7, 0), App.Vector(0, 0, 1), 1.55), False)
sketch12.addGeometry(Part.Circle(App.Vector(11.870402, 7, 0), App.Vector(0, 0, 1), 1.55), False)
sketch12.addConstraint(Sketcher.Constraint("Equal", 0, 1))
sketch12.addConstraint(Sketcher.Constraint("Horizontal", 0, 3, 1, 3))
sketch12.addConstraint(Sketcher.Constraint("Diameter", 0, 3.1))
sketch12.addConstraint(Sketcher.Constraint("DistanceY", -1, 1, 0, 3, 7.0))
sketch12.addConstraint(Sketcher.Constraint("DistanceX", 0, 3, 1, 3, 48.587149))
sketch12.addConstraint(Sketcher.Constraint("DistanceX", 0, 3, -1, 1, 36.716747))
pocket10 = body2.newObject("PartDesign::Pocket", "Pocket009")
pocket10.Profile = sketch12
pocket10.Type = "ThroughAll"

sketch13 = body2.newObject("Sketcher::SketchObject", "Sketch012")
sketch13.AttachmentSupport = (doc.getObject("YZ_Plane001"), [""])
sketch13.MapMode = "FlatFace"
sketch13.AttachmentOffset = App.Placement(App.Vector(0, 0, 9.75), App.Rotation())
sketch13.addGeometry(Part.Circle(App.Vector(-36.716747, 7, 0), App.Vector(0, 0, 1), 3.2), False)
sketch13.addGeometry(Part.Circle(App.Vector(11.870402, 7, 0), App.Vector(0, 0, 1), 3.2), False)
sketch13.addConstraint(Sketcher.Constraint("Equal", 0, 1))
sketch13.addConstraint(Sketcher.Constraint("Horizontal", 0, 3, 1, 3))
sketch13.addConstraint(Sketcher.Constraint("Diameter", 0, 6.4))
sketch13.addConstraint(Sketcher.Constraint("DistanceY", -1, 1, 0, 3, 7.0))
sketch13.addConstraint(Sketcher.Constraint("DistanceX", 0, 3, 1, 3, 48.587149))
sketch13.addConstraint(Sketcher.Constraint("DistanceX", 0, 3, -1, 1, 36.716747))
pocket11 = body2.newObject("PartDesign::Pocket", "Pocket010")
pocket11.Profile = sketch13
pocket11.Length = 5.5

sketch14 = body2.newObject("Sketcher::SketchObject", "Sketch013")
sketch14.AttachmentSupport = (doc.getObject("YZ_Plane001"), [""])
sketch14.MapMode = "FlatFace"
sketch14.AttachmentOffset = App.Placement(App.Vector(0, 0, -9.75), App.Rotation())
add_polygon(sketch14, [(11.870402, 10.25), (14.684984, 8.625), (14.684984, 5.375), (11.870402, 3.75), (9.055819, 5.375), (9.055819, 8.625)])
add_polygon(sketch14, [(-36.716747, 10.25), (-33.902164, 8.625), (-33.902164, 5.375), (-36.716747, 3.75), (-39.531329, 5.375), (-39.531329, 8.625)])
sketch14.addConstraint(Sketcher.Constraint("Vertical", 1))
sketch14.addConstraint(Sketcher.Constraint("Vertical", 4))
sketch14.addConstraint(Sketcher.Constraint("Vertical", 7))
sketch14.addConstraint(Sketcher.Constraint("Vertical", 10))
sketch14.addConstraint(Sketcher.Constraint("Parallel", 0, 3))
sketch14.addConstraint(Sketcher.Constraint("Parallel", 2, 5))
sketch14.addConstraint(Sketcher.Constraint("Parallel", 3, 6))
sketch14.addConstraint(Sketcher.Constraint("Parallel", 5, 8))
sketch14.addConstraint(Sketcher.Constraint("Parallel", 6, 9))
sketch14.addConstraint(Sketcher.Constraint("Parallel", 8, 11))
sketch14.addConstraint(Sketcher.Constraint("Horizontal", 1, 2, 3, 2))
sketch14.addConstraint(Sketcher.Constraint("Horizontal", 0, 2, 4, 2))
sketch14.addConstraint(Sketcher.Constraint("Horizontal", 4, 2, 6, 2))
sketch14.addConstraint(Sketcher.Constraint("Horizontal", 3, 2, 7, 2))
sketch14.addConstraint(Sketcher.Constraint("Horizontal", 2, 2, 8, 2))
sketch14.addConstraint(Sketcher.Constraint("Horizontal", 7, 2, 9, 2))
sketch14.addConstraint(Sketcher.Constraint("Horizontal", 6, 2, 10, 2))
sketch14.addConstraint(Sketcher.Constraint("Vertical", 2, 2, 5, 2))
sketch14.addConstraint(Sketcher.Constraint("Angle", 0, Q("-30.000005 deg")))
sketch14.addConstraint(Sketcher.Constraint("DistanceY", 1, 2, 1, 1, 3.25))
sketch14.addConstraint(Sketcher.Constraint("DistanceY", 2, 2, 5, 2, 6.5))
sketch14.addConstraint(Sketcher.Constraint("DistanceY", -1, 1, 2, 2, 3.75))
sketch14.addConstraint(Sketcher.Constraint("DistanceX", -1, 1, 3, 2, 9.055819))
sketch14.addConstraint(Sketcher.Constraint("DistanceX", 9, 2, -1, 1, 39.531329))
pocket12 = body2.newObject("PartDesign::Pocket", "Pocket011")
pocket12.Profile = sketch14
pocket12.Length = 5.5
pocket12.Reversed = True
doc.recompute()

fillet = body2.newObject("PartDesign::Fillet", "Fillet")
fillet.Base = (pocket12, edges_at(pocket12, [
    (5.062, 17.641, 0),
    (5.062, -42.333, 0),
    (-5.062, -42.333, 0),
    (-5.062, 17.641, 0),
    (-5.062, 17.641, 14),
    (5.062, 17.641, 14),
    (-5.062, -42.333, 14),
    (5.062, -42.333, 14),
]))
fillet.Radius = 6
doc.recompute()

fillet2 = body2.newObject("PartDesign::Fillet", "Fillet001")
fillet2.Base = (fillet, edges_at(fillet, [
    (-0.375, 9.641, 0),
    (0.375, 9.641, 0),
    (0, -7.65, 0),
    (9.75, 8.87, 0),
    (13.25, 6.1, 0),
    (16.75, 3.825, 0),
    (-9.75, 2.697, 0),
    (14.75, 1.55, 0),
    (-13.25, -6.246, 0),
    (12.75, 2.337, 0),
    (-16.75, -8.521, 0),
    (11.625, 3.125, 0),
    (-14.75, -10.796, 0),
    (10.5, 0, 0),
    (-12.75, -10.009, 0),
    (11.625, -3.125, 0),
    (-11.625, -9.221, 0),
    (12.75, -2.337, 0),
    (-10.5, -12.346, 0),
    (14.75, -1.55, 0),
    (-11.625, -15.471, 0),
    (16.75, -3.825, 0),
    (-12.75, -14.684, 0),
    (13.25, -6.1, 0),
    (-14.75, -13.896, 0),
    (9.75, -12.5, 0),
    (-16.75, -16.171, 0),
    (13.25, -18.9, 0),
    (-13.25, -18.446, 0),
    (16.75, -21.175, 0),
    (-9.75, -27.39, 0),
    (14.75, -23.45, 0),
    (12.75, -22.663, 0),
    (-0.375, -34.333, 0),
    (11.625, -21.875, 0),
    (-3.457, -30.554, 0),
    (10.5, -25, 0),
    (-6.538, -25, 0),
    (11.625, -28.125, 0),
    (-3.269, -19.337, 0),
    (12.75, -27.337, 0),
    (3.269, -19.337, 0),
    (14.75, -26.55, 0),
    (6.538, -25, 0),
    (16.75, -28.825, 0),
    (3.457, -30.554, 0),
    (13.25, -31.1, 0),
    (0.375, -34.333, 0),
    (9.75, -33.717, 0),
]))
fillet2.Radius = 1

doc.recompute()
